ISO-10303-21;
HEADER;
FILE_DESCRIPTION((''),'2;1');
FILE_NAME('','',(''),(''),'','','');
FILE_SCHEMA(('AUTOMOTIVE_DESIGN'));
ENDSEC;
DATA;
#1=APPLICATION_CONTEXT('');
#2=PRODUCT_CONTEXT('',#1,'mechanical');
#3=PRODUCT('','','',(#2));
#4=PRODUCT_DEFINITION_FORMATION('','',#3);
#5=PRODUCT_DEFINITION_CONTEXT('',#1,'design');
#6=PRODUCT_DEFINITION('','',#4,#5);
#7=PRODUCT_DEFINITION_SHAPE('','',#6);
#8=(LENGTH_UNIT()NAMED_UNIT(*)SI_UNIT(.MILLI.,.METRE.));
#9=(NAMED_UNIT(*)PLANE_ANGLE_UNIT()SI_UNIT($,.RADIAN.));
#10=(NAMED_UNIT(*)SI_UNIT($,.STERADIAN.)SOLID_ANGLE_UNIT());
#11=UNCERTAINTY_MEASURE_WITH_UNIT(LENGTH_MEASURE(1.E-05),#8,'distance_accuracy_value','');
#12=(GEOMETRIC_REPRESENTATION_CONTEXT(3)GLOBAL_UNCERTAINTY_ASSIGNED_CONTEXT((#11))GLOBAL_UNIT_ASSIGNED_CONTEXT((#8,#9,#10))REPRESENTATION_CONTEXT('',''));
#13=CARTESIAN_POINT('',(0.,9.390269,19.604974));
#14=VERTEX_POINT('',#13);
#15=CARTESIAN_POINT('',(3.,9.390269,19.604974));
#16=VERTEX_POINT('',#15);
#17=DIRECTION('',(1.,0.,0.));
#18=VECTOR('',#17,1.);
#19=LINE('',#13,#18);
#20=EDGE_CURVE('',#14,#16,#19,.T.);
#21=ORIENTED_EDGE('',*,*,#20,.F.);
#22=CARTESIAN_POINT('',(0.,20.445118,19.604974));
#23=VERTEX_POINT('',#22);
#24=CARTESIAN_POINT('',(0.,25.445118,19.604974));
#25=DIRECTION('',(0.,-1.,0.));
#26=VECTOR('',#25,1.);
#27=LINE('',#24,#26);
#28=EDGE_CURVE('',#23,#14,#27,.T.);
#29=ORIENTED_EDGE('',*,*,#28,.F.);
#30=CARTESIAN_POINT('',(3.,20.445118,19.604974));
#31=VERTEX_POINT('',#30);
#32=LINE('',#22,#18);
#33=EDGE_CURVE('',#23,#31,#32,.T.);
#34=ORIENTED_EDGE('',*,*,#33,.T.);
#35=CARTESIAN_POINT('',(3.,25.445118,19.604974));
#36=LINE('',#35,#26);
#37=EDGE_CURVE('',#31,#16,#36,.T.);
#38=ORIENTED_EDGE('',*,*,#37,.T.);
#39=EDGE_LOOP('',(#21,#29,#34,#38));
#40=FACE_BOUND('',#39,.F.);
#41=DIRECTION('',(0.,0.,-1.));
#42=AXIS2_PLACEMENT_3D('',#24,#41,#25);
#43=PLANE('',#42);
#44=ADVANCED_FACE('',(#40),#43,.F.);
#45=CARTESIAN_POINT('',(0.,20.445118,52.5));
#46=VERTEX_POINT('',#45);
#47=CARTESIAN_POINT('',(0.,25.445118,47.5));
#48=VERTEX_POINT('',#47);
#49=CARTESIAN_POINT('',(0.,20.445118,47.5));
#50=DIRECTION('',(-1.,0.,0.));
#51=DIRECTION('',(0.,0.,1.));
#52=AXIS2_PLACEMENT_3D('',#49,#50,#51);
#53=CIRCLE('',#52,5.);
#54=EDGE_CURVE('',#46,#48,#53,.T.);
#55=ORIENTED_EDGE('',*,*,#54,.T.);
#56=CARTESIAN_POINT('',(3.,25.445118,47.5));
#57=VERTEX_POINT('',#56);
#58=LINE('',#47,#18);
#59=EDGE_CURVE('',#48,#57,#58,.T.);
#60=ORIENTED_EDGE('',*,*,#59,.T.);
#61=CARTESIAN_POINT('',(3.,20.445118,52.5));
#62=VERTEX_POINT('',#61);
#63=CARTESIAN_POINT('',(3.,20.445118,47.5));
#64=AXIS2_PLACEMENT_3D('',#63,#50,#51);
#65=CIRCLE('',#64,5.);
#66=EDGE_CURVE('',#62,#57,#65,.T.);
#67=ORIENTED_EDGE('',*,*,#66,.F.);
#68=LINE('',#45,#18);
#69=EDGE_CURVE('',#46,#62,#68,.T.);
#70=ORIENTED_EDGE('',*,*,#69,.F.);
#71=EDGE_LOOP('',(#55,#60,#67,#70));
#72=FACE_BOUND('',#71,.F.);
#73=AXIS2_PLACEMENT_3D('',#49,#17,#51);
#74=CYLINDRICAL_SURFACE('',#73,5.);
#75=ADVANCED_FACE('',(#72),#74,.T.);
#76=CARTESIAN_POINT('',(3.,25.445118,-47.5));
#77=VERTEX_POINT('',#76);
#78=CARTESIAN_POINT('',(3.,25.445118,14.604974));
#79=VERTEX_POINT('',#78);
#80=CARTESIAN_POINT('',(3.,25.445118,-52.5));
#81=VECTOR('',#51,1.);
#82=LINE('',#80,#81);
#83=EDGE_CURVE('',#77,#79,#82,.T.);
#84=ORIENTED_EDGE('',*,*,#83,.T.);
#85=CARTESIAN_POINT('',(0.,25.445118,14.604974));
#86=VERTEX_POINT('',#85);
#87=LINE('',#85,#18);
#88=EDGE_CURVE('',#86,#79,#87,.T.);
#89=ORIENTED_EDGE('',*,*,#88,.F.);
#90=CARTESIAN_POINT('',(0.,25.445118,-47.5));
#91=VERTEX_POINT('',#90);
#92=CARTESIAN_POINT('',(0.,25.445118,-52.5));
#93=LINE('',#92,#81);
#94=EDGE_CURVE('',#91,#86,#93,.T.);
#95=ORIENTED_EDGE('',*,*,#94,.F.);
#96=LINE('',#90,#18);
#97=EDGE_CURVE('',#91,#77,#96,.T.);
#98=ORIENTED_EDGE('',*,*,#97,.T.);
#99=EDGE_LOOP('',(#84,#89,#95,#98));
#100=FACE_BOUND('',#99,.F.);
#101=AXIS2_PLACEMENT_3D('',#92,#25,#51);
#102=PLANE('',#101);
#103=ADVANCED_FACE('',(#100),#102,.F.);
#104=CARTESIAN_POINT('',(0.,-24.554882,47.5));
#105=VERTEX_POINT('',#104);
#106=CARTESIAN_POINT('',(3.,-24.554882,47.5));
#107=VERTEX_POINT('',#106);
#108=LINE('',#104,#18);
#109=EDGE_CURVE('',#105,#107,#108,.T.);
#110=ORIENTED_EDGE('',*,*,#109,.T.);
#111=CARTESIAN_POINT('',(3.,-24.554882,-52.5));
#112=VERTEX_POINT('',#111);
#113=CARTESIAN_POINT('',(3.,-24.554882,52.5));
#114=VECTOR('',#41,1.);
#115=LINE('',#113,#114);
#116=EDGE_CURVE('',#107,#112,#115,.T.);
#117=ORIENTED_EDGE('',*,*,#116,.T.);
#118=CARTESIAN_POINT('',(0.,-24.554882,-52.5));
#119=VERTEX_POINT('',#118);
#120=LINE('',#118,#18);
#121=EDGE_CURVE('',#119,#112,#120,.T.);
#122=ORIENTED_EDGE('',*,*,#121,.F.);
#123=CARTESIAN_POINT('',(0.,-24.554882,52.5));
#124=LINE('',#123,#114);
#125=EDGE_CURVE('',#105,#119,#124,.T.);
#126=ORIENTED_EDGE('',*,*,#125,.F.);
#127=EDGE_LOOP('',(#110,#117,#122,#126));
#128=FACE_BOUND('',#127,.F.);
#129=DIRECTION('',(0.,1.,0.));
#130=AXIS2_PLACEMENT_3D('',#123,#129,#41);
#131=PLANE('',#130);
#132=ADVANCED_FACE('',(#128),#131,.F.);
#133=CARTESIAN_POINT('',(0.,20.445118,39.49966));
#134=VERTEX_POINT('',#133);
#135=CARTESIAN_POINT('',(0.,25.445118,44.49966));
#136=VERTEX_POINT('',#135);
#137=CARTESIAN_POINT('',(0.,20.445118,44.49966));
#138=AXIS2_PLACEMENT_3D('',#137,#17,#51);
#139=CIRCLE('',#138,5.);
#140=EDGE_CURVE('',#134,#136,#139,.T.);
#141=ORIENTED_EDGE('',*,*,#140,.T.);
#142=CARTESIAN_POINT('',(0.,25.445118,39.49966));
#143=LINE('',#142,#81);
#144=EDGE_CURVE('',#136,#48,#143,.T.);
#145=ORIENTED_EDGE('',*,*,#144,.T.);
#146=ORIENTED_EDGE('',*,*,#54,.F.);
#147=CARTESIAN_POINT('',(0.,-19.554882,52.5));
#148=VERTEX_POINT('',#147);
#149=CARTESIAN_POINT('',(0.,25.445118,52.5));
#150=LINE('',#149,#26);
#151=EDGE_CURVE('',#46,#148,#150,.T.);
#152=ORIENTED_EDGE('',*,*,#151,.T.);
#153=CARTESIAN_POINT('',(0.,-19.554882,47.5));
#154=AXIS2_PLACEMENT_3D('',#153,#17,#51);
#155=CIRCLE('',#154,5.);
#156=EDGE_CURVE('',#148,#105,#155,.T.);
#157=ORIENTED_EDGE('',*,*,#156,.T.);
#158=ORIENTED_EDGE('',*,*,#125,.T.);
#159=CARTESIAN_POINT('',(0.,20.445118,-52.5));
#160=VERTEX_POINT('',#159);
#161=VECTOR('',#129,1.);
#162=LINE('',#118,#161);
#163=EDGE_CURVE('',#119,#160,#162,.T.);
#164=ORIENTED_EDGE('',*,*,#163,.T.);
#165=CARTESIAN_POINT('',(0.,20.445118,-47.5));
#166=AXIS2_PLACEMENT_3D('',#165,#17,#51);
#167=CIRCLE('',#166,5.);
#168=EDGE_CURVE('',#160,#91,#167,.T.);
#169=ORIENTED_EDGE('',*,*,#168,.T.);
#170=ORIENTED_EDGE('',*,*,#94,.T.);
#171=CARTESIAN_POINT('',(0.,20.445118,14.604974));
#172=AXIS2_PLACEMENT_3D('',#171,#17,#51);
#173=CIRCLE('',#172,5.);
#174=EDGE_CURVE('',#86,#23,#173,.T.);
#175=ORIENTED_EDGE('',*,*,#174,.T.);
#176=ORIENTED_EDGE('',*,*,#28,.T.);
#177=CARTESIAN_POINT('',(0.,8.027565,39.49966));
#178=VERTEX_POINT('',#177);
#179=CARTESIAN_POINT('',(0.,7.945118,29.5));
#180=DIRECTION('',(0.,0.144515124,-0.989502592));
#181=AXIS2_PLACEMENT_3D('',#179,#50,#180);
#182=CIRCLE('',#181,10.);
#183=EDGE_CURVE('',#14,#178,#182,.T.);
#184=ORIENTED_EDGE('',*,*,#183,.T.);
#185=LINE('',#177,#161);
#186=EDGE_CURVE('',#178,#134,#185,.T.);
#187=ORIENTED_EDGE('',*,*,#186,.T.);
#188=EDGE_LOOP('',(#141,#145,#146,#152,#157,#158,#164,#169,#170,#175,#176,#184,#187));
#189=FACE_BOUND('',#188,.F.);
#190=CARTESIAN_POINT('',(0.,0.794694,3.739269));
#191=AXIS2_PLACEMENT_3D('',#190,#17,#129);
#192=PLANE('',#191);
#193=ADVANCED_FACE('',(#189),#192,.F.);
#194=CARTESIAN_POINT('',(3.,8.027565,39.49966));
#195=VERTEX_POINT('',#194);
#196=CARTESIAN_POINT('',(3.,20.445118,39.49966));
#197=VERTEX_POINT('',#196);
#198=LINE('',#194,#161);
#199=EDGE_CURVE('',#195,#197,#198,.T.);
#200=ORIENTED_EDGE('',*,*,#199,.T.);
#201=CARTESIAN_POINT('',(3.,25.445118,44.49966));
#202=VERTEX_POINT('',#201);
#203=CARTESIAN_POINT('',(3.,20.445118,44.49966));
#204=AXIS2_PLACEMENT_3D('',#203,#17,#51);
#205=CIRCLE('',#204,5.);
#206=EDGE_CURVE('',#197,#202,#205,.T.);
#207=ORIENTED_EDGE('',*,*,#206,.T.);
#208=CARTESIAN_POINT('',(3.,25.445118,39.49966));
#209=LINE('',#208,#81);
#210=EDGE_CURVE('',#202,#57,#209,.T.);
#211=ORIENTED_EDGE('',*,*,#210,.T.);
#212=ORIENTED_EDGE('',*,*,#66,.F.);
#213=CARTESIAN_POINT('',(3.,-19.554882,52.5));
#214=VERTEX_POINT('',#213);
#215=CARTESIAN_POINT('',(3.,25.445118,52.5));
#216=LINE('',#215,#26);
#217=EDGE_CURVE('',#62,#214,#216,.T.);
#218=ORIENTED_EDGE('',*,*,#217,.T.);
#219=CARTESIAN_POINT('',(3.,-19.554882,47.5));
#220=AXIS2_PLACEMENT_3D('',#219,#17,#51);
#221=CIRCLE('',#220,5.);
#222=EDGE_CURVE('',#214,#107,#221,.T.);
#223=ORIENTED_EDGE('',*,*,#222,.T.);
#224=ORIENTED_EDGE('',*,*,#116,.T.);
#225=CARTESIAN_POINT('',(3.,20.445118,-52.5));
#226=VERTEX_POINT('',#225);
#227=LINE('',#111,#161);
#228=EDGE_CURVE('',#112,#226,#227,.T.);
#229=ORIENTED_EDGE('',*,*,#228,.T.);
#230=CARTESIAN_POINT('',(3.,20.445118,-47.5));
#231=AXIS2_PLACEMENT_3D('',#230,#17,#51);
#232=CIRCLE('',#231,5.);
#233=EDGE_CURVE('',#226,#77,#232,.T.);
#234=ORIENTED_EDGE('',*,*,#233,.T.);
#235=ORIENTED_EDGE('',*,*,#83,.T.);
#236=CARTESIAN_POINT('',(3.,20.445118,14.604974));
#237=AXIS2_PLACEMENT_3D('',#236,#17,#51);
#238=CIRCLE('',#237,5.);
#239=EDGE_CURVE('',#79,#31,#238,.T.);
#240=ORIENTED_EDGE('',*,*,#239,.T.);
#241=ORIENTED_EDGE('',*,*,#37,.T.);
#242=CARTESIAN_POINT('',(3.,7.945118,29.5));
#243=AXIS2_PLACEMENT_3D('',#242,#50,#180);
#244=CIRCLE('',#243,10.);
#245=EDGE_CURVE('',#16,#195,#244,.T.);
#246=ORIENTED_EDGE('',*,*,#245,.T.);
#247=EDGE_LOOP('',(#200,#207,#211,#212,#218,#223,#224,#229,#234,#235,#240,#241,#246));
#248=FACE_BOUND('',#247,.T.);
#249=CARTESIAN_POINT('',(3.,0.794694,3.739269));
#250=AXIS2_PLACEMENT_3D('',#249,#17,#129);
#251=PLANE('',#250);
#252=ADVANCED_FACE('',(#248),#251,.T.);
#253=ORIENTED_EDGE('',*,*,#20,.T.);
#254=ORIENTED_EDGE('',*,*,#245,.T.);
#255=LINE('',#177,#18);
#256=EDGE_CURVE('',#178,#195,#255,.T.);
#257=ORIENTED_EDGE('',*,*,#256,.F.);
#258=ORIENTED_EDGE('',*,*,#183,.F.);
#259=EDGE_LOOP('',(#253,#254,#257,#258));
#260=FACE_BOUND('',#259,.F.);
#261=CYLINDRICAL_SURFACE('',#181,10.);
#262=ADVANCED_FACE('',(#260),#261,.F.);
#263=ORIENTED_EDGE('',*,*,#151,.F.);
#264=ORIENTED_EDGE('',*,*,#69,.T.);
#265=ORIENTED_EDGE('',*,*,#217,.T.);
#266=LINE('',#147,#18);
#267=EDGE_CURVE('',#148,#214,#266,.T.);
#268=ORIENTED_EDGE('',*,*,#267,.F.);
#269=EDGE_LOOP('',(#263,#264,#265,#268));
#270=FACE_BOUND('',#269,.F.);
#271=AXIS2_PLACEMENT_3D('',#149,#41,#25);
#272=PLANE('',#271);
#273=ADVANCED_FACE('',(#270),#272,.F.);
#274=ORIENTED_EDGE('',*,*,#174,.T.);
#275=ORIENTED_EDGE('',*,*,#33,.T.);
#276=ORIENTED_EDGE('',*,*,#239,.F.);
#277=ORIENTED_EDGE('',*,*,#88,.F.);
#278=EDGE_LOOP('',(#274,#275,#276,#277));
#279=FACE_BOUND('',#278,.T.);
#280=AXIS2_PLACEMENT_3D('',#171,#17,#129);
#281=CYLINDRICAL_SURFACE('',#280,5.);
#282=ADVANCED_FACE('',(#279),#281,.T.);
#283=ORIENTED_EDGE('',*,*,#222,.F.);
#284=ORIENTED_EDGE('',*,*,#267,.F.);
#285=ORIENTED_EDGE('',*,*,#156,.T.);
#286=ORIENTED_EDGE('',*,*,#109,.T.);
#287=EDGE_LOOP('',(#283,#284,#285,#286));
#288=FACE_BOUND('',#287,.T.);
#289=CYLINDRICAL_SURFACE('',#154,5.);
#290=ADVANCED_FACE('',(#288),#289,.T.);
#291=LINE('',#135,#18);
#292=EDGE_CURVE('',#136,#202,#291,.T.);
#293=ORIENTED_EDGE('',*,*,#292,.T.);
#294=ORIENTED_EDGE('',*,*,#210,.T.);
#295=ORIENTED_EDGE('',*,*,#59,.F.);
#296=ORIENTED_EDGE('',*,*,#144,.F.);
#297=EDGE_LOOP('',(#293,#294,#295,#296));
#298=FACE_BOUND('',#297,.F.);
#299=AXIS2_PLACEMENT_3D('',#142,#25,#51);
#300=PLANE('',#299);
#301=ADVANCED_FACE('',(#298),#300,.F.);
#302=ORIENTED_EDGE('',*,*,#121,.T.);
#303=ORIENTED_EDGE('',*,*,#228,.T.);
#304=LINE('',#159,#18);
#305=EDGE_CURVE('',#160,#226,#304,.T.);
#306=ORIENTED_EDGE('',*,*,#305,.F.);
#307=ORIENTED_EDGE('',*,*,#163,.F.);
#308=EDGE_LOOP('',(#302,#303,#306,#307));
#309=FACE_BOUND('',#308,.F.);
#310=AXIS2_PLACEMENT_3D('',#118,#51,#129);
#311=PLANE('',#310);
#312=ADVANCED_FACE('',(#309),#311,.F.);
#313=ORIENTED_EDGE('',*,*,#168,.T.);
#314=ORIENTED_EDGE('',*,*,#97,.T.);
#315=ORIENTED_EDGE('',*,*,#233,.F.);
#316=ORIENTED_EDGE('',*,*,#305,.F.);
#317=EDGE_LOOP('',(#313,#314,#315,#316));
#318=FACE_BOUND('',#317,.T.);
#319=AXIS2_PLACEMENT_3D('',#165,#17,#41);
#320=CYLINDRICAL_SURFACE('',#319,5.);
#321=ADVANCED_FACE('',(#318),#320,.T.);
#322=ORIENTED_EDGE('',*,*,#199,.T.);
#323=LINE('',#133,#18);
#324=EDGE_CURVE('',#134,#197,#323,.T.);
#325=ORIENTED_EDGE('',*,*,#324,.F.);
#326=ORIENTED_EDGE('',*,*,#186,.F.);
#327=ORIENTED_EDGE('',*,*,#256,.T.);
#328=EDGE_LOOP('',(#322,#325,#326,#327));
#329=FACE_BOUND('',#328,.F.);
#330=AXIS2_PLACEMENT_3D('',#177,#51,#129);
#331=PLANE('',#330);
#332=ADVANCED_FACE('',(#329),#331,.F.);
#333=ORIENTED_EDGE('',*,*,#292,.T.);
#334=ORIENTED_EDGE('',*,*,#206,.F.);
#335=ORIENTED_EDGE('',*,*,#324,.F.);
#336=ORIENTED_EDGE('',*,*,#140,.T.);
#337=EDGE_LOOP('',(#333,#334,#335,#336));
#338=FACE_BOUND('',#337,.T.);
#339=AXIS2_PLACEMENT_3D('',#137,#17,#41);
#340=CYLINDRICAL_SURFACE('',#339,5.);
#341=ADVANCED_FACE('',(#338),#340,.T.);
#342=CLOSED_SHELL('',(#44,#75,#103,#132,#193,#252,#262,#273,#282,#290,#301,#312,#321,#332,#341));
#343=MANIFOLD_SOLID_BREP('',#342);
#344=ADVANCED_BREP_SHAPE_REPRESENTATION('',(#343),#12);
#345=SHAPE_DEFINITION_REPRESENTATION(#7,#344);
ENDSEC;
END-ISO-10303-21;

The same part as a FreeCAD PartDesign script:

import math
import FreeCAD as App
import Part
import Sketcher

V = App.Vector


def edges_at(feature, points):
    """Names of the edges that pass closest to the given points."""
    edges = feature.Shape.Edges
    near = lambda p: min(range(len(edges)), key=lambda i: edges[i].distToShape(Part.Vertex(*p))[0])
    return sorted({f"Edge{near(p) + 1}" for p in points})

doc = App.newDocument("Part")
body = doc.addObject("PartDesign::Body", "Body")

sketch1 = body.newObject("Sketcher::SketchObject", "Sketch")
sketch1.AttachmentSupport = (doc.getObject("YZ_Plane"), [""])
sketch1.MapMode = "FlatFace"
sketch1.addGeometry([
    Part.LineSegment(V(25.445118, 52.5, 0), V(-24.554882, 52.5, 0)),
    Part.LineSegment(V(-24.554882, 52.5, 0), V(-24.554882, -52.5, 0)),
    Part.LineSegment(V(-24.554882, -52.5, 0), V(25.445118, -52.5, 0)),
    Part.LineSegment(V(25.445118, -52.5, 0), V(25.445118, 19.604974, 0)),
    Part.LineSegment(V(25.445118, 19.604974, 0), V(9.390269, 19.604974, 0)),
    Part.ArcOfCircle(Part.Circle(V(7.945118, 29.5, 0), V(0, 0, 1), 10), math.radians(89.527607), math.radians(278.309202)),
    Part.LineSegment(V(8.027565, 39.49966, 0), V(25.445118, 39.49966, 0)),
    Part.LineSegment(V(25.445118, 39.49966, 0), V(25.445118, 52.5, 0)),
], False)
sketch1.addConstraint([
    Sketcher.Constraint("Coincident", 0, 2, 1, 1),
    Sketcher.Constraint("Coincident", 1, 2, 2, 1),
    Sketcher.Constraint("Coincident", 2, 2, 3, 1),
    Sketcher.Constraint("Coincident", 3, 2, 4, 1),
    Sketcher.Constraint("Coincident", 4, 2, 5, 2),
    Sketcher.Constraint("Coincident", 5, 1, 6, 1),
    Sketcher.Constraint("Coincident", 6, 2, 7, 1),
    Sketcher.Constraint("Coincident", 7, 2, 0, 1),
    Sketcher.Constraint("Horizontal", 0),
    Sketcher.Constraint("Vertical", 1),
    Sketcher.Constraint("Horizontal", 2),
    Sketcher.Constraint("Vertical", 3),
    Sketcher.Constraint("Horizontal", 4),
    Sketcher.Constraint("Horizontal", 6),
    Sketcher.Constraint("Vertical", 7),
    Sketcher.Constraint("Symmetric", 2, 2, 7, 2, -1),
    Sketcher.Constraint("Radius", 5, 10.0),
    Sketcher.Constraint("DistanceX", 0, 2, 0, 1, 50.0),
    Sketcher.Constraint("DistanceY", 1, 2, 1, 1, 105.0),
    Sketcher.Constraint("DistanceY", 5, 3, 0, 2, 23.0),
    Sketcher.Constraint("DistanceX", 0, 2, 5, 3, 32.5),
    Sketcher.Constraint("DistanceX", 4, 2, 4, 1, 16.054849),
    Sketcher.Constraint("DistanceY", 7, 1, 7, 2, 13.00034),
    Sketcher.Constraint("DistanceX", 0, 2, -1, 1, 24.554882),
])
pad1 = body.newObject("PartDesign::Pad", "Pad")
pad1.Profile = sketch1
pad1.Length = 3
doc.recompute()

fillet = body.newObject("PartDesign::Fillet", "Fillet")
fillet.Base = (pad1, edges_at(pad1, [
    (1.5, -24.555, 52.5),
    (1.5, 25.445, 52.5),
    (1.5, 25.445, 39.5),
    (1.5, 25.445, 19.605),
    (1.5, 25.445, -52.5),
]))
fillet.Radius = 5

doc.recompute()
